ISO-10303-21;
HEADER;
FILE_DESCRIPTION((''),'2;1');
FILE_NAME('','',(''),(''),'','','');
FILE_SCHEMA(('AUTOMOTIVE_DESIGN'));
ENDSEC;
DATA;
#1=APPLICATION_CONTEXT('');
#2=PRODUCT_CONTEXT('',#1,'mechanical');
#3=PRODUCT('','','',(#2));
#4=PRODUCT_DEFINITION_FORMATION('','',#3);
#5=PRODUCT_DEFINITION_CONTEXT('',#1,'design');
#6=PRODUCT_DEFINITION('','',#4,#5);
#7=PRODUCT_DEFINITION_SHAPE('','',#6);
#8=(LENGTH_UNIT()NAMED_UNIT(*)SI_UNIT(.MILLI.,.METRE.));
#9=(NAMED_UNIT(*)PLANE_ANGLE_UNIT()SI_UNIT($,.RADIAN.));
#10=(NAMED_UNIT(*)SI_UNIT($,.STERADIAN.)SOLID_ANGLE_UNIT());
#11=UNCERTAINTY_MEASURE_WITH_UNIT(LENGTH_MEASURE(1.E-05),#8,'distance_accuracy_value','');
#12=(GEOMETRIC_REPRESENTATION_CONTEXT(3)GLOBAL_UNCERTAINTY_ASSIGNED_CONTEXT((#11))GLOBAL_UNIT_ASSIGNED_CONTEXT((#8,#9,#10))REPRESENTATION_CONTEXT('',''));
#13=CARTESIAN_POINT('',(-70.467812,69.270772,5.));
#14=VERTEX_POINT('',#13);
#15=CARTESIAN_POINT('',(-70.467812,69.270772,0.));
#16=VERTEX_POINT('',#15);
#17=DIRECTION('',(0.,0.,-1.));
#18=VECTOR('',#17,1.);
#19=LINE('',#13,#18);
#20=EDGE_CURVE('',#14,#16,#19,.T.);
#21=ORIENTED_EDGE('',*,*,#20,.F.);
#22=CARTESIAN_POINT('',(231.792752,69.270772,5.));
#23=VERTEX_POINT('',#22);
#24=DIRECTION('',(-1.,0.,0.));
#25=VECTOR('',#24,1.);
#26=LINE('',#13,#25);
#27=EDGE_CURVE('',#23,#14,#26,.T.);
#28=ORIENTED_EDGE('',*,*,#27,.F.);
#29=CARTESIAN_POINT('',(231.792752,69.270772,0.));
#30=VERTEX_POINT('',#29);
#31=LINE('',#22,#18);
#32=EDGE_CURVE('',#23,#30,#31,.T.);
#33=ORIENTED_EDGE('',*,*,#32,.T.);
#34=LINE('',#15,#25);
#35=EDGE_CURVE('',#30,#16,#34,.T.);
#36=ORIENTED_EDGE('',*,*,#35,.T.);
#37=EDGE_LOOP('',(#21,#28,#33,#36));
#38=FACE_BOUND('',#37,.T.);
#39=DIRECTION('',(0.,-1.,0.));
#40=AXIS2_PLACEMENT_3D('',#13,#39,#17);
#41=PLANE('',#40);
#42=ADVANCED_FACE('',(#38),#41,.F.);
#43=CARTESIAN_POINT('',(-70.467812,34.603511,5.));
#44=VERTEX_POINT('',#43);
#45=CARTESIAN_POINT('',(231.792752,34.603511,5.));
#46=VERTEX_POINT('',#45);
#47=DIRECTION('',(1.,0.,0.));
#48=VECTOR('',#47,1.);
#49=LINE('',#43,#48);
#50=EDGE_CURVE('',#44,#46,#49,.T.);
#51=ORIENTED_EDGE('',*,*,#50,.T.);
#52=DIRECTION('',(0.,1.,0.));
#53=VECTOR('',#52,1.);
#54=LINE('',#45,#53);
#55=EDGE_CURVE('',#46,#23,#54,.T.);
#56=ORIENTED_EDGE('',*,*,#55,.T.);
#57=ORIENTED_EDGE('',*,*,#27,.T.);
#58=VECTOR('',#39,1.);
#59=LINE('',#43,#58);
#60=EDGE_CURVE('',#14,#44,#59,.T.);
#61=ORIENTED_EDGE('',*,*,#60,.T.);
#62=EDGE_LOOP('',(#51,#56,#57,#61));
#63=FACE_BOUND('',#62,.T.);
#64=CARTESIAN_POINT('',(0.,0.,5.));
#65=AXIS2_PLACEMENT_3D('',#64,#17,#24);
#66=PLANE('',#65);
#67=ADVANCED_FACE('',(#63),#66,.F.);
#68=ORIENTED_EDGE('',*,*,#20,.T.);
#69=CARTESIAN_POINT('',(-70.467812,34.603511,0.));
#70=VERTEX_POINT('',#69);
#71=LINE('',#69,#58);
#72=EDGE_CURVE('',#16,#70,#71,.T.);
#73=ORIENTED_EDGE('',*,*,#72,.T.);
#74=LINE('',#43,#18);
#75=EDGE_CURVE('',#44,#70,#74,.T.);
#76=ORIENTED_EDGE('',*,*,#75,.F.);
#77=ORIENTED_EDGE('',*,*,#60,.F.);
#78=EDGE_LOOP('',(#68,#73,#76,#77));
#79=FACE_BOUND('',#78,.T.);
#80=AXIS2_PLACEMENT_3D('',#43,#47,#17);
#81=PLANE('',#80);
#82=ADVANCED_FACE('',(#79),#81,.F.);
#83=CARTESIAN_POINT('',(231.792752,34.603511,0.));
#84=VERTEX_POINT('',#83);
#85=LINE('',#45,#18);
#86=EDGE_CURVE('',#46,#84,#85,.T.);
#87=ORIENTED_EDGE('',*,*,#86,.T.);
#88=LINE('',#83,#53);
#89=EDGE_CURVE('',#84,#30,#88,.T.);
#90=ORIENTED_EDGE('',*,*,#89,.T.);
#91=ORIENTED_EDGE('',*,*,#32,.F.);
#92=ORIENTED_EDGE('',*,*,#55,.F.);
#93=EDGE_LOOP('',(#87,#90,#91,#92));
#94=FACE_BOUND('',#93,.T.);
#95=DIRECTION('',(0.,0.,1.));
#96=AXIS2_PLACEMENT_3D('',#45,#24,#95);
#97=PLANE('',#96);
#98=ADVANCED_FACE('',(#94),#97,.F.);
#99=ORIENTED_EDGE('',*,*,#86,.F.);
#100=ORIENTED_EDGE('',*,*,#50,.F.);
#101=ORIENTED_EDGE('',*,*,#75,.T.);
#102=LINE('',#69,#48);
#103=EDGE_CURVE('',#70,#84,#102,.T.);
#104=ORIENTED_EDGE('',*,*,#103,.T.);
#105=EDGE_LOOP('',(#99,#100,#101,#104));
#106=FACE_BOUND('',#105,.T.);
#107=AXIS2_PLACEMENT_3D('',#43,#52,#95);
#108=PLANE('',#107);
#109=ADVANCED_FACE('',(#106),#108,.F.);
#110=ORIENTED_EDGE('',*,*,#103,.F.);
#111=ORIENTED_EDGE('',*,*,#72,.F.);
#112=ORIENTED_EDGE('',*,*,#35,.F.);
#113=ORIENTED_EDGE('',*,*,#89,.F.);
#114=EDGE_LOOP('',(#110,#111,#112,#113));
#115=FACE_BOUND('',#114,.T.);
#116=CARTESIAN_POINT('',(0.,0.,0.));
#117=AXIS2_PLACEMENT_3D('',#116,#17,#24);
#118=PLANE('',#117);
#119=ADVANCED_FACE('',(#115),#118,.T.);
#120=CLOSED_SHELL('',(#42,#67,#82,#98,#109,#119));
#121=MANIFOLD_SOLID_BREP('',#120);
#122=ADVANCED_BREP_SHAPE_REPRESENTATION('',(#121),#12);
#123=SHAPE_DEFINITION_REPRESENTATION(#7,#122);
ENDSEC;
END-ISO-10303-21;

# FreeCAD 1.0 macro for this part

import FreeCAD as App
import Part
import Sketcher
Q = App.Units.Quantity

doc = App.newDocument("Part")
body = doc.addObject("PartDesign::Body", "Body")

sketch1 = body.newObject("Sketcher::SketchObject", "Sketch")
sketch1.AttachmentSupport = (doc.getObject("XY_Plane"), [""])
sketch1.MapMode = "FlatFace"
sketch1.addGeometry(Part.LineSegment(App.Vector(-70, 69, 0), App.Vector(-70, 35, 0)), False)
sketch1.addGeometry(Part.LineSegment(App.Vector(-70, 35, 0), App.Vector(232, 35, 0)), False)
sketch1.addGeometry(Part.LineSegment(App.Vector(232, 35, 0), App.Vector(232, 69, 0)), False)
sketch1.addGeometry(Part.LineSegment(App.Vector(232, 69, 0), App.Vector(-70, 69, 0)), False)
sketch1.addConstraint(Sketcher.Constraint("Coincident", 0, 2, 1, 1))
sketch1.addConstraint(Sketcher.Constraint("Coincident", 1, 2, 2, 1))
sketch1.addConstraint(Sketcher.Constraint("Coincident", 2, 2, 3, 1))
sketch1.addConstraint(Sketcher.Constraint("Coincident", 3, 2, 0, 1))
sketch1.addConstraint(Sketcher.Constraint("Vertical", 0))
sketch1.addConstraint(Sketcher.Constraint("Horizontal", 1))
sketch1.addConstraint(Sketcher.Constraint("Vertical", 2))
sketch1.addConstraint(Sketcher.Constraint("Horizontal", 3))
sketch1.addConstraint(Sketcher.Constraint("DistanceY", 0, 2, 0, 1, Q("34.667261 mm")))
sketch1.addConstraint(Sketcher.Constraint("DistanceX", 1, 1, 1, 2, Q("302.260564 mm")))
sketch1.addConstraint(Sketcher.Constraint("DistanceX", 0, 2, -1, 1, Q("70.467812 mm")))
sketch1.addConstraint(Sketcher.Constraint("DistanceY", -1, 1, 0, 2, Q("34.603511 mm")))
pad1 = body.newObject("PartDesign::Pad", "Pad")
pad1.Profile = sketch1
pad1.Length = 5

doc.recompute()
